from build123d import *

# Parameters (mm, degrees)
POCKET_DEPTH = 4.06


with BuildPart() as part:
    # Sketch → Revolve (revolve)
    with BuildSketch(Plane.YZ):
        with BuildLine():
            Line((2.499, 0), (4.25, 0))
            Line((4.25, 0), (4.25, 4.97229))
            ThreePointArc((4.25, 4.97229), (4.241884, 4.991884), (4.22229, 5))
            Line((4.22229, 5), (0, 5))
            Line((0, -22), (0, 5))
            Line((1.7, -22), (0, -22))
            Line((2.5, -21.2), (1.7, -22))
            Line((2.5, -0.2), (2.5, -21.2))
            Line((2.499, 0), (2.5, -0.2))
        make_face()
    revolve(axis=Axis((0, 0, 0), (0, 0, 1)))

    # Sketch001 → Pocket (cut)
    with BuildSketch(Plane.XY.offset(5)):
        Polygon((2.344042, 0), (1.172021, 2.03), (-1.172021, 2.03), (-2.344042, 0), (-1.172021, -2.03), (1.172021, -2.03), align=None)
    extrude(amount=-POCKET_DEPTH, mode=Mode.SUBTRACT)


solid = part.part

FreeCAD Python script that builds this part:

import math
import FreeCAD as App
import Part
import Sketcher

V = App.Vector
Q = App.Units.Quantity

doc = App.newDocument("Part")
body = doc.addObject("PartDesign::Body", "Body")

# Sketch on YZ plane
sketch1 = doc.addObject("Sketcher::SketchObject", "Sketch")
body.addObject(sketch1)
sketch1.AttachmentSupport = (doc.YZ_Plane, [""])
sketch1.MapMode = "FlatFace"
sketch1.addGeometry([
    Part.LineSegment(V(2.499, 0, 0), V(4.25, 0, 0)),  # 0
    Part.LineSegment(V(4.25, 0, 0), V(4.25, 4.972, 0)),  # 1
    Part.ArcOfCircle(Part.Circle(V(4.222, 4.972, 0), V(0, 0, 1), 0.028), math.radians(0), math.radians(90)),  # 2
    Part.LineSegment(V(4.222, 5, 0), V(0, 5, 0)),  # 3
    Part.LineSegment(V(0, 5, 0), V(0, -22, 0)),  # 4
    Part.LineSegment(V(0, -22, 0), V(1.7, -22, 0)),  # 5
    Part.LineSegment(V(1.7, -22, 0), V(2.5, -21.2, 0)),  # 6
    Part.LineSegment(V(2.5, -21.2, 0), V(2.5, -0.2, 0)),  # 7
    Part.LineSegment(V(2.5, -0.2, 0), V(2.499, 0, 0)),  # 8
], False)
sketch1.addConstraint([
    Sketcher.Constraint("Coincident", 0, 2, 1, 1),
    Sketcher.Constraint("Coincident", 1, 2, 2, 1),
    Sketcher.Constraint("Coincident", 2, 2, 3, 1),
    Sketcher.Constraint("Coincident", 3, 2, 4, 1),
    Sketcher.Constraint("Coincident", 4, 2, 5, 1),
    Sketcher.Constraint("Coincident", 5, 2, 6, 1),
    Sketcher.Constraint("Coincident", 6, 2, 7, 1),
    Sketcher.Constraint("Coincident", 7, 2, 8, 1),
    Sketcher.Constraint("Coincident", 8, 2, 0, 1),
    Sketcher.Constraint("Horizontal", 0),
    Sketcher.Constraint("Vertical", 1),
    Sketcher.Constraint("Horizontal", 3),
    Sketcher.Constraint("Vertical", 4),
    Sketcher.Constraint("Horizontal", 5),
    Sketcher.Constraint("Vertical", 7),
    Sketcher.Constraint("PointOnObject", 0, 2, -1),
    Sketcher.Constraint("PointOnObject", 3, 2, -2),
    Sketcher.Constraint("Horizontal", 2, 3, 1, 2),
    Sketcher.Constraint("DistanceY", 4, 2, 4, 1, Q("27 mm")),
    Sketcher.Constraint("DistanceY", 7, 1, 7, 2, Q("21 mm")),
    Sketcher.Constraint("Angle", 6, Q("45 deg")),
    Sketcher.Constraint("DistanceX", 5, 1, 5, 2, Q("1.7 mm")),
    Sketcher.Constraint("DistanceY", -1, 1, 2, 2, Q("5 mm")),
    Sketcher.Constraint("DistanceX", -1, 1, 6, 2, Q("2.5 mm")),
    Sketcher.Constraint("DistanceX", 0, 1, 0, 2, Q("1.751 mm")),
    Sketcher.Constraint("DistanceX", -1, 1, 0, 2, Q("4.25 mm")),
    Sketcher.Constraint("Radius", 2, Q("0.02771 mm")),
    Sketcher.Constraint("DistanceX", 3, 2, 3, 1, Q("4.22229 mm")),
])
revolution = doc.addObject("PartDesign::Revolution", "Revolution")
body.addObject(revolution)
revolution.Profile = sketch1
revolution.ReferenceAxis = (sketch1, ["V_Axis"])
revolution.Angle = 360

# Sketch on XY plane
sketch2 = doc.addObject("Sketcher::SketchObject", "Sketch001")
body.addObject(sketch2)
sketch2.AttachmentSupport = (doc.XY_Plane, [""])
sketch2.MapMode = "FlatFace"
sketch2.AttachmentOffset = App.Placement(V(0, 0, 5), App.Rotation())
sketch2.addGeometry([
    Part.LineSegment(V(2.3, 0, 0), V(1.2, 2, 0)),  # 0
    Part.LineSegment(V(1.2, 2, 0), V(-1.2, 2, 0)),  # 1
    Part.LineSegment(V(-1.2, 2, 0), V(-2.3, 0, 0)),  # 2
    Part.LineSegment(V(-2.3, 0, 0), V(-1.2, -2, 0)),  # 3
    Part.LineSegment(V(-1.2, -2, 0), V(1.2, -2, 0)),  # 4
    Part.LineSegment(V(1.2, -2, 0), V(2.3, 0, 0)),  # 5
], False)
sketch2.addConstraint([
    Sketcher.Constraint("Coincident", 0, 2, 1, 1),
    Sketcher.Constraint("Coincident", 1, 2, 2, 1),
    Sketcher.Constraint("Coincident", 2, 2, 3, 1),
    Sketcher.Constraint("Coincident", 3, 2, 4, 1),
    Sketcher.Constraint("Coincident", 4, 2, 5, 1),
    Sketcher.Constraint("Coincident", 5, 2, 0, 1),
    Sketcher.Constraint("Horizontal", 1),
    Sketcher.Constraint("Horizontal", 4),
    Sketcher.Constraint("Symmetric", 0, 2, 3, 2, -1, 1),
    Sketcher.Constraint("Symmetric", 2, 2, 5, 2, -1, 1),
    Sketcher.Constraint("PointOnObject", 2, 2, -1),
    Sketcher.Constraint("Parallel", 2, 5),
    Sketcher.Constraint("Vertical", 1, 2, 3, 2),
    Sketcher.Constraint("Angle", 0, Q("119.999999 deg")),
    Sketcher.Constraint("DistanceY", -1, 1, 0, 2, Q("2.03 mm")),
    Sketcher.Constraint("DistanceX", 1, 2, 1, 1, Q("2.344042 mm")),
])
pocket1 = doc.addObject("PartDesign::Pocket", "Pocket")
body.addObject(pocket1)
pocket1.Profile = sketch2
pocket1.Length = 4.06

doc.recompute()
